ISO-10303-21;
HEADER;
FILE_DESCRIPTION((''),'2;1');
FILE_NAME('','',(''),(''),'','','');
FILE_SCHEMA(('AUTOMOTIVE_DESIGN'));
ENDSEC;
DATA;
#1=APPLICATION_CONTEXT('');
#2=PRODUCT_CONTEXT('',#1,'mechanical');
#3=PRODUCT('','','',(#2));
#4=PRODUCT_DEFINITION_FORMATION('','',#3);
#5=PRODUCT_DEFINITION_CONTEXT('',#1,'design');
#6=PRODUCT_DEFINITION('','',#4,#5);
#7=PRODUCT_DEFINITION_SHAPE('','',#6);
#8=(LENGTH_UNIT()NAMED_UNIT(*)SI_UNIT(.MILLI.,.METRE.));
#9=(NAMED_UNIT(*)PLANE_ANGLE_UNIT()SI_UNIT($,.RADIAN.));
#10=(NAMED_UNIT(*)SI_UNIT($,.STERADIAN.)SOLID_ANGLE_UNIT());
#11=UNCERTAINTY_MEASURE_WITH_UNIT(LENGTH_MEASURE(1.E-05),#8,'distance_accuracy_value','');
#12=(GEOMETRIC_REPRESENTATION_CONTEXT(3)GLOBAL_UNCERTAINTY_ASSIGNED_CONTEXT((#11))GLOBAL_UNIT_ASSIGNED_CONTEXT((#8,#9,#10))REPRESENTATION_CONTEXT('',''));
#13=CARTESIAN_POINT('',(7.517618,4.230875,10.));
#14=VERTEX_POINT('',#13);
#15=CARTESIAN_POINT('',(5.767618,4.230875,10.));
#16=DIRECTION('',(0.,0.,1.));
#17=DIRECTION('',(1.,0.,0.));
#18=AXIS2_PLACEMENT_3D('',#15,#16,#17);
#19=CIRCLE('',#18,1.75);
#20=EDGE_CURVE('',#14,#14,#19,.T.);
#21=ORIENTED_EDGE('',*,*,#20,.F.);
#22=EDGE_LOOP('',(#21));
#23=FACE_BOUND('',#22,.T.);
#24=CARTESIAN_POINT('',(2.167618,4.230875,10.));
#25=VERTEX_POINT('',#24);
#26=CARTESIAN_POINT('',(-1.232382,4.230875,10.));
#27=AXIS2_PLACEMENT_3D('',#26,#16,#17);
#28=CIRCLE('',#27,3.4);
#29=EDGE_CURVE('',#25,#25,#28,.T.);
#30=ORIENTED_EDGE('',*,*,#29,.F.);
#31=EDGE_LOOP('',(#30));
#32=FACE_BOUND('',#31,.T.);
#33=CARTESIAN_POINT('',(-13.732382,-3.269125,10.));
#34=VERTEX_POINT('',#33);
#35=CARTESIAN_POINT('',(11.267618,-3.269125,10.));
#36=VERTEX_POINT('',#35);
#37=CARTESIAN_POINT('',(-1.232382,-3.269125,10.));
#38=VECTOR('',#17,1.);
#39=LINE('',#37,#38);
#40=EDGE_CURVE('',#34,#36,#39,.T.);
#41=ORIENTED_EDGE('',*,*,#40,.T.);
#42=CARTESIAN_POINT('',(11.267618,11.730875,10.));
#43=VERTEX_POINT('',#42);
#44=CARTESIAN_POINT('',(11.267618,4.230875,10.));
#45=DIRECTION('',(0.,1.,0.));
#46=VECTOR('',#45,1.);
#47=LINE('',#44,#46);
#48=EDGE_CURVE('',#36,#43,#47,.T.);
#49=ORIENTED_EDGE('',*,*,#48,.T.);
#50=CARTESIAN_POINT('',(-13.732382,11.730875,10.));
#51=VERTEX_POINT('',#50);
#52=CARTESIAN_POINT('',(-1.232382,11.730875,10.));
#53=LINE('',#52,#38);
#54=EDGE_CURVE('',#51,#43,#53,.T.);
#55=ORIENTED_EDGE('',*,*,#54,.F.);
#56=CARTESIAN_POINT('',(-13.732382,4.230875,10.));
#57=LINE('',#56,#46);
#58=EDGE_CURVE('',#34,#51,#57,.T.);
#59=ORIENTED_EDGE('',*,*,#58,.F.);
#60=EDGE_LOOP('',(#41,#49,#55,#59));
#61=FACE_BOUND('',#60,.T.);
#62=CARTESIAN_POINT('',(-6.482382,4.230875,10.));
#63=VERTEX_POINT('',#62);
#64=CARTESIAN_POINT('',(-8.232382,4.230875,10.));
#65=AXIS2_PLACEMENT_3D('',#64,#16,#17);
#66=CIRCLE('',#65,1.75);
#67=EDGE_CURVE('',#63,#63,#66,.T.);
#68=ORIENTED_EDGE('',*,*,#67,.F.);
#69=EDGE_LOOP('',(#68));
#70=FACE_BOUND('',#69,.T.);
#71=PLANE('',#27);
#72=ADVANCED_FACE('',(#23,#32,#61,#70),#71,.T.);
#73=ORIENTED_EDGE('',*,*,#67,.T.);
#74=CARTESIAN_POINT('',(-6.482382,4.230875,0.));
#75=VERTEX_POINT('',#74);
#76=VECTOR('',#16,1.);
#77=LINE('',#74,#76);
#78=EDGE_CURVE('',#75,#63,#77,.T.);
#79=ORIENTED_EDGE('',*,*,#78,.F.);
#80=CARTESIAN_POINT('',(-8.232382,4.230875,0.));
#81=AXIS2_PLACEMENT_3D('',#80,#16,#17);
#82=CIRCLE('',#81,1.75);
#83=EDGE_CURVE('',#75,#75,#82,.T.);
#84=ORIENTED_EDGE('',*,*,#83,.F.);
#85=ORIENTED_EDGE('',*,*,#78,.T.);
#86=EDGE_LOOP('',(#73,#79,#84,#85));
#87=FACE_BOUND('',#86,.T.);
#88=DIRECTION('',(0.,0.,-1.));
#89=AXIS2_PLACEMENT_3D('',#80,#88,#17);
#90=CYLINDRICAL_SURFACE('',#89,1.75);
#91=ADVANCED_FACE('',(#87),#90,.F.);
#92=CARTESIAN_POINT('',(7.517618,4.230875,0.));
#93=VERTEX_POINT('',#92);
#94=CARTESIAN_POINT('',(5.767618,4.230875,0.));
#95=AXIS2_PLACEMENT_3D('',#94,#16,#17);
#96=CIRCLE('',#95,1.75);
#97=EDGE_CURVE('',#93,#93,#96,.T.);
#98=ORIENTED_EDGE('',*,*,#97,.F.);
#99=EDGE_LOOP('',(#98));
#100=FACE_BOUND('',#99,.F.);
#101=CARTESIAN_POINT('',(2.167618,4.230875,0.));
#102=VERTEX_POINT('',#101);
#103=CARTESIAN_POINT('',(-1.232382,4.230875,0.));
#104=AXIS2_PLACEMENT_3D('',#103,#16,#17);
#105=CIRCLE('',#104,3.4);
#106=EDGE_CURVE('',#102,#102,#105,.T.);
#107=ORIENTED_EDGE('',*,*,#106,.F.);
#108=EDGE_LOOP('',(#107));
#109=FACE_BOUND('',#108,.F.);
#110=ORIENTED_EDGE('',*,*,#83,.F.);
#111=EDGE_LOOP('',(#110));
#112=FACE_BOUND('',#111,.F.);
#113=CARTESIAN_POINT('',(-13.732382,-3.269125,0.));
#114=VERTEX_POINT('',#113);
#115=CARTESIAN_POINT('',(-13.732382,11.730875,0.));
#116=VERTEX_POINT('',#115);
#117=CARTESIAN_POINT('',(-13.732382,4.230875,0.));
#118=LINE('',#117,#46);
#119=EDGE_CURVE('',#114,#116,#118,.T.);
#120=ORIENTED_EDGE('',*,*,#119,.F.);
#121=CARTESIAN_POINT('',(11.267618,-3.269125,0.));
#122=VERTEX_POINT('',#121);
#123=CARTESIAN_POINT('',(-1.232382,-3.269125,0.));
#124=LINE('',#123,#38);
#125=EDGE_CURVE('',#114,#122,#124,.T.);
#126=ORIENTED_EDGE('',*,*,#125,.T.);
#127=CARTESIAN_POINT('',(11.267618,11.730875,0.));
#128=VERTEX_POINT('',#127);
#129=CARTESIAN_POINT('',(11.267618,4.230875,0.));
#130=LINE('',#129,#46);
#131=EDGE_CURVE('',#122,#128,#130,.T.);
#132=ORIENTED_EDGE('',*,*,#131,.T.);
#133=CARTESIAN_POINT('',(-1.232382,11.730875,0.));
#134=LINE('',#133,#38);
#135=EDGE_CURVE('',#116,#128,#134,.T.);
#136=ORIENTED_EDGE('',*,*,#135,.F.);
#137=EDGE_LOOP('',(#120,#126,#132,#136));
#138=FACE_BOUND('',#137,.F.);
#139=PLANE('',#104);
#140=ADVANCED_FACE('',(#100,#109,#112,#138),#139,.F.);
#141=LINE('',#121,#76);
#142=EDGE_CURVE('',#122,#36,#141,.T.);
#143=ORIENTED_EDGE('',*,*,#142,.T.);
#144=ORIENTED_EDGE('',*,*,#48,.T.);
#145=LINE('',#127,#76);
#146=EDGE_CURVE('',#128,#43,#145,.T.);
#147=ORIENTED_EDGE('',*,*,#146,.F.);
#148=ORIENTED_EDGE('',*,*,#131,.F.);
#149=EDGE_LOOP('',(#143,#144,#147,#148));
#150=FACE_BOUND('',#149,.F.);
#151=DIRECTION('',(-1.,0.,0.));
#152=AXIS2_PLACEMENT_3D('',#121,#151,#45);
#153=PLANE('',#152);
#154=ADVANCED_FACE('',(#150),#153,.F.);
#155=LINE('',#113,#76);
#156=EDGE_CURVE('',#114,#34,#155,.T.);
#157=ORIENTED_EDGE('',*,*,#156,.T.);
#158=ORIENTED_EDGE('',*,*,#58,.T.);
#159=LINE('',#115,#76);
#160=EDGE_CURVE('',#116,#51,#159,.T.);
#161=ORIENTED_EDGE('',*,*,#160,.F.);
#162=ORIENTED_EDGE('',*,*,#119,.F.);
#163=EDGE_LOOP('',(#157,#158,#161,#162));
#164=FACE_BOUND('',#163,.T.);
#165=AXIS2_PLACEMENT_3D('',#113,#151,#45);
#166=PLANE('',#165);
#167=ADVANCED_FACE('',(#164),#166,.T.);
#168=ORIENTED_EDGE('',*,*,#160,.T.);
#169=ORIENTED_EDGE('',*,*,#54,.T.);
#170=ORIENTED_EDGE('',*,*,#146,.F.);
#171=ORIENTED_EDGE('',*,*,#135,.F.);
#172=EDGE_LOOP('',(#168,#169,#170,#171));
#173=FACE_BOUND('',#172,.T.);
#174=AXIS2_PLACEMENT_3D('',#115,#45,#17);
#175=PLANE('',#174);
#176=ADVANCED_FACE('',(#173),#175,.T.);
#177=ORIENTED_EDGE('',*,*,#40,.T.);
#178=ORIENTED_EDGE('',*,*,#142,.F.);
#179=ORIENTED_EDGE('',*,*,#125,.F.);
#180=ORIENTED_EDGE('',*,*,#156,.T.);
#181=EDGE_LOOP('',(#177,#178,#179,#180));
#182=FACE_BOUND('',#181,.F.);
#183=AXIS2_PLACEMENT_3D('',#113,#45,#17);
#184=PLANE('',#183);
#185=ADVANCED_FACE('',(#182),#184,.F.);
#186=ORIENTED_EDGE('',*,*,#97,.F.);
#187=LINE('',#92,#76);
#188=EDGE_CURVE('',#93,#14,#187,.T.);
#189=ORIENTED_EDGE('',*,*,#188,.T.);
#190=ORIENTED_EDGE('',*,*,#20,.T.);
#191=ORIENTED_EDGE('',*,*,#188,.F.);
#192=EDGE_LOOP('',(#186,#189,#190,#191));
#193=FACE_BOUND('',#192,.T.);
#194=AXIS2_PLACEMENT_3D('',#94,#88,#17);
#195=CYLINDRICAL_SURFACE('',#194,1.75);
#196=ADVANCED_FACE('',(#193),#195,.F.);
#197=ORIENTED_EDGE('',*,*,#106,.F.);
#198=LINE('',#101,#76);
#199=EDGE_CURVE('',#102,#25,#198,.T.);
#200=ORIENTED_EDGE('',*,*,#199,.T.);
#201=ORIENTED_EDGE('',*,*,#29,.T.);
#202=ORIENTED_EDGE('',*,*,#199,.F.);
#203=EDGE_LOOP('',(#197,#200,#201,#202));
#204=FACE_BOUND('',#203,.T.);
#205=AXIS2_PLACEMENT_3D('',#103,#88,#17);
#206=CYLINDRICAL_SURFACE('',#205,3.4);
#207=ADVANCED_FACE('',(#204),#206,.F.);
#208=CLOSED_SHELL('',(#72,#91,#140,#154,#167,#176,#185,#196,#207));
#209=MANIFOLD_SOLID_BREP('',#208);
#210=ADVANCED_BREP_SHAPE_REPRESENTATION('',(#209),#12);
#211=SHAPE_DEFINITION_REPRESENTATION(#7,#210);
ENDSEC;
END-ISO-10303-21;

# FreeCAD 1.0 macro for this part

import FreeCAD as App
import Part
import Sketcher

V = App.Vector
Q = App.Units.Quantity

doc = App.newDocument("Part")
body = doc.addObject("PartDesign::Body", "Body")

sketch1 = doc.addObject("Sketcher::SketchObject", "Sketch")
body.addObject(sketch1)
sketch1.AttachmentSupport = (doc.XY_Plane, [""])
sketch1.MapMode = "FlatFace"
sketch1.addGeometry([
    Part.LineSegment(V(-13.732382, 11.730875, 0), V(-13.732382, -3.269125, 0)),
    Part.LineSegment(V(-13.732382, -3.269125, 0), V(11.267618, -3.269125, 0)),
    Part.LineSegment(V(11.267618, -3.269125, 0), V(11.267618, 11.730875, 0)),
    Part.LineSegment(V(11.267618, 11.730875, 0), V(-13.732382, 11.730875, 0)),
    Part.Circle(V(-8.232382, 4.230875, 0), V(0, 0, 1), 1.75),
    Part.Circle(V(-1.232382, 4.230875, 0), V(0, 0, 1), 3.4),
    Part.Circle(V(5.767618, 4.230875, 0), V(0, 0, 1), 1.75),
], False)
sketch1.addConstraint([
    Sketcher.Constraint("Coincident", 0, 2, 1, 1),
    Sketcher.Constraint("Coincident", 1, 2, 2, 1),
    Sketcher.Constraint("Coincident", 2, 2, 3, 1),
    Sketcher.Constraint("Coincident", 3, 2, 0, 1),
    Sketcher.Constraint("Vertical", 0),
    Sketcher.Constraint("Horizontal", 1),
    Sketcher.Constraint("Vertical", 2),
    Sketcher.Constraint("Horizontal", 3),
    Sketcher.Constraint("Equal", 4, 6),
    Sketcher.Constraint("Horizontal", 4, 3, 5, 3),
    Sketcher.Constraint("Horizontal", 5, 3, 6, 3),
    Sketcher.Constraint("Diameter", 4, Q("3.5 mm")),
    Sketcher.Constraint("Diameter", 5, Q("6.8 mm")),
    Sketcher.Constraint("DistanceX", 1, 1, 1, 2, Q("25 mm")),
    Sketcher.Constraint("DistanceY", 0, 2, 0, 1, Q("15 mm")),
    Sketcher.Constraint("DistanceX", 4, 3, 5, 3, Q("7 mm")),
    Sketcher.Constraint("DistanceX", 5, 3, 6, 3, Q("7 mm")),
    Sketcher.Constraint("DistanceX", 0, 2, 4, 3, Q("5.5 mm")),
    Sketcher.Constraint("DistanceY", 0, 2, 4, 3, Q("7.5 mm")),
    Sketcher.Constraint("DistanceX", 4, 3, -1, 1, Q("8.232382 mm")),
    Sketcher.Constraint("DistanceY", -1, 1, 4, 3, Q("4.230875 mm")),
])
pad1 = doc.addObject("PartDesign::Pad", "Pad")
body.addObject(pad1)
pad1.Profile = sketch1
pad1.Length = 10

doc.recompute()
